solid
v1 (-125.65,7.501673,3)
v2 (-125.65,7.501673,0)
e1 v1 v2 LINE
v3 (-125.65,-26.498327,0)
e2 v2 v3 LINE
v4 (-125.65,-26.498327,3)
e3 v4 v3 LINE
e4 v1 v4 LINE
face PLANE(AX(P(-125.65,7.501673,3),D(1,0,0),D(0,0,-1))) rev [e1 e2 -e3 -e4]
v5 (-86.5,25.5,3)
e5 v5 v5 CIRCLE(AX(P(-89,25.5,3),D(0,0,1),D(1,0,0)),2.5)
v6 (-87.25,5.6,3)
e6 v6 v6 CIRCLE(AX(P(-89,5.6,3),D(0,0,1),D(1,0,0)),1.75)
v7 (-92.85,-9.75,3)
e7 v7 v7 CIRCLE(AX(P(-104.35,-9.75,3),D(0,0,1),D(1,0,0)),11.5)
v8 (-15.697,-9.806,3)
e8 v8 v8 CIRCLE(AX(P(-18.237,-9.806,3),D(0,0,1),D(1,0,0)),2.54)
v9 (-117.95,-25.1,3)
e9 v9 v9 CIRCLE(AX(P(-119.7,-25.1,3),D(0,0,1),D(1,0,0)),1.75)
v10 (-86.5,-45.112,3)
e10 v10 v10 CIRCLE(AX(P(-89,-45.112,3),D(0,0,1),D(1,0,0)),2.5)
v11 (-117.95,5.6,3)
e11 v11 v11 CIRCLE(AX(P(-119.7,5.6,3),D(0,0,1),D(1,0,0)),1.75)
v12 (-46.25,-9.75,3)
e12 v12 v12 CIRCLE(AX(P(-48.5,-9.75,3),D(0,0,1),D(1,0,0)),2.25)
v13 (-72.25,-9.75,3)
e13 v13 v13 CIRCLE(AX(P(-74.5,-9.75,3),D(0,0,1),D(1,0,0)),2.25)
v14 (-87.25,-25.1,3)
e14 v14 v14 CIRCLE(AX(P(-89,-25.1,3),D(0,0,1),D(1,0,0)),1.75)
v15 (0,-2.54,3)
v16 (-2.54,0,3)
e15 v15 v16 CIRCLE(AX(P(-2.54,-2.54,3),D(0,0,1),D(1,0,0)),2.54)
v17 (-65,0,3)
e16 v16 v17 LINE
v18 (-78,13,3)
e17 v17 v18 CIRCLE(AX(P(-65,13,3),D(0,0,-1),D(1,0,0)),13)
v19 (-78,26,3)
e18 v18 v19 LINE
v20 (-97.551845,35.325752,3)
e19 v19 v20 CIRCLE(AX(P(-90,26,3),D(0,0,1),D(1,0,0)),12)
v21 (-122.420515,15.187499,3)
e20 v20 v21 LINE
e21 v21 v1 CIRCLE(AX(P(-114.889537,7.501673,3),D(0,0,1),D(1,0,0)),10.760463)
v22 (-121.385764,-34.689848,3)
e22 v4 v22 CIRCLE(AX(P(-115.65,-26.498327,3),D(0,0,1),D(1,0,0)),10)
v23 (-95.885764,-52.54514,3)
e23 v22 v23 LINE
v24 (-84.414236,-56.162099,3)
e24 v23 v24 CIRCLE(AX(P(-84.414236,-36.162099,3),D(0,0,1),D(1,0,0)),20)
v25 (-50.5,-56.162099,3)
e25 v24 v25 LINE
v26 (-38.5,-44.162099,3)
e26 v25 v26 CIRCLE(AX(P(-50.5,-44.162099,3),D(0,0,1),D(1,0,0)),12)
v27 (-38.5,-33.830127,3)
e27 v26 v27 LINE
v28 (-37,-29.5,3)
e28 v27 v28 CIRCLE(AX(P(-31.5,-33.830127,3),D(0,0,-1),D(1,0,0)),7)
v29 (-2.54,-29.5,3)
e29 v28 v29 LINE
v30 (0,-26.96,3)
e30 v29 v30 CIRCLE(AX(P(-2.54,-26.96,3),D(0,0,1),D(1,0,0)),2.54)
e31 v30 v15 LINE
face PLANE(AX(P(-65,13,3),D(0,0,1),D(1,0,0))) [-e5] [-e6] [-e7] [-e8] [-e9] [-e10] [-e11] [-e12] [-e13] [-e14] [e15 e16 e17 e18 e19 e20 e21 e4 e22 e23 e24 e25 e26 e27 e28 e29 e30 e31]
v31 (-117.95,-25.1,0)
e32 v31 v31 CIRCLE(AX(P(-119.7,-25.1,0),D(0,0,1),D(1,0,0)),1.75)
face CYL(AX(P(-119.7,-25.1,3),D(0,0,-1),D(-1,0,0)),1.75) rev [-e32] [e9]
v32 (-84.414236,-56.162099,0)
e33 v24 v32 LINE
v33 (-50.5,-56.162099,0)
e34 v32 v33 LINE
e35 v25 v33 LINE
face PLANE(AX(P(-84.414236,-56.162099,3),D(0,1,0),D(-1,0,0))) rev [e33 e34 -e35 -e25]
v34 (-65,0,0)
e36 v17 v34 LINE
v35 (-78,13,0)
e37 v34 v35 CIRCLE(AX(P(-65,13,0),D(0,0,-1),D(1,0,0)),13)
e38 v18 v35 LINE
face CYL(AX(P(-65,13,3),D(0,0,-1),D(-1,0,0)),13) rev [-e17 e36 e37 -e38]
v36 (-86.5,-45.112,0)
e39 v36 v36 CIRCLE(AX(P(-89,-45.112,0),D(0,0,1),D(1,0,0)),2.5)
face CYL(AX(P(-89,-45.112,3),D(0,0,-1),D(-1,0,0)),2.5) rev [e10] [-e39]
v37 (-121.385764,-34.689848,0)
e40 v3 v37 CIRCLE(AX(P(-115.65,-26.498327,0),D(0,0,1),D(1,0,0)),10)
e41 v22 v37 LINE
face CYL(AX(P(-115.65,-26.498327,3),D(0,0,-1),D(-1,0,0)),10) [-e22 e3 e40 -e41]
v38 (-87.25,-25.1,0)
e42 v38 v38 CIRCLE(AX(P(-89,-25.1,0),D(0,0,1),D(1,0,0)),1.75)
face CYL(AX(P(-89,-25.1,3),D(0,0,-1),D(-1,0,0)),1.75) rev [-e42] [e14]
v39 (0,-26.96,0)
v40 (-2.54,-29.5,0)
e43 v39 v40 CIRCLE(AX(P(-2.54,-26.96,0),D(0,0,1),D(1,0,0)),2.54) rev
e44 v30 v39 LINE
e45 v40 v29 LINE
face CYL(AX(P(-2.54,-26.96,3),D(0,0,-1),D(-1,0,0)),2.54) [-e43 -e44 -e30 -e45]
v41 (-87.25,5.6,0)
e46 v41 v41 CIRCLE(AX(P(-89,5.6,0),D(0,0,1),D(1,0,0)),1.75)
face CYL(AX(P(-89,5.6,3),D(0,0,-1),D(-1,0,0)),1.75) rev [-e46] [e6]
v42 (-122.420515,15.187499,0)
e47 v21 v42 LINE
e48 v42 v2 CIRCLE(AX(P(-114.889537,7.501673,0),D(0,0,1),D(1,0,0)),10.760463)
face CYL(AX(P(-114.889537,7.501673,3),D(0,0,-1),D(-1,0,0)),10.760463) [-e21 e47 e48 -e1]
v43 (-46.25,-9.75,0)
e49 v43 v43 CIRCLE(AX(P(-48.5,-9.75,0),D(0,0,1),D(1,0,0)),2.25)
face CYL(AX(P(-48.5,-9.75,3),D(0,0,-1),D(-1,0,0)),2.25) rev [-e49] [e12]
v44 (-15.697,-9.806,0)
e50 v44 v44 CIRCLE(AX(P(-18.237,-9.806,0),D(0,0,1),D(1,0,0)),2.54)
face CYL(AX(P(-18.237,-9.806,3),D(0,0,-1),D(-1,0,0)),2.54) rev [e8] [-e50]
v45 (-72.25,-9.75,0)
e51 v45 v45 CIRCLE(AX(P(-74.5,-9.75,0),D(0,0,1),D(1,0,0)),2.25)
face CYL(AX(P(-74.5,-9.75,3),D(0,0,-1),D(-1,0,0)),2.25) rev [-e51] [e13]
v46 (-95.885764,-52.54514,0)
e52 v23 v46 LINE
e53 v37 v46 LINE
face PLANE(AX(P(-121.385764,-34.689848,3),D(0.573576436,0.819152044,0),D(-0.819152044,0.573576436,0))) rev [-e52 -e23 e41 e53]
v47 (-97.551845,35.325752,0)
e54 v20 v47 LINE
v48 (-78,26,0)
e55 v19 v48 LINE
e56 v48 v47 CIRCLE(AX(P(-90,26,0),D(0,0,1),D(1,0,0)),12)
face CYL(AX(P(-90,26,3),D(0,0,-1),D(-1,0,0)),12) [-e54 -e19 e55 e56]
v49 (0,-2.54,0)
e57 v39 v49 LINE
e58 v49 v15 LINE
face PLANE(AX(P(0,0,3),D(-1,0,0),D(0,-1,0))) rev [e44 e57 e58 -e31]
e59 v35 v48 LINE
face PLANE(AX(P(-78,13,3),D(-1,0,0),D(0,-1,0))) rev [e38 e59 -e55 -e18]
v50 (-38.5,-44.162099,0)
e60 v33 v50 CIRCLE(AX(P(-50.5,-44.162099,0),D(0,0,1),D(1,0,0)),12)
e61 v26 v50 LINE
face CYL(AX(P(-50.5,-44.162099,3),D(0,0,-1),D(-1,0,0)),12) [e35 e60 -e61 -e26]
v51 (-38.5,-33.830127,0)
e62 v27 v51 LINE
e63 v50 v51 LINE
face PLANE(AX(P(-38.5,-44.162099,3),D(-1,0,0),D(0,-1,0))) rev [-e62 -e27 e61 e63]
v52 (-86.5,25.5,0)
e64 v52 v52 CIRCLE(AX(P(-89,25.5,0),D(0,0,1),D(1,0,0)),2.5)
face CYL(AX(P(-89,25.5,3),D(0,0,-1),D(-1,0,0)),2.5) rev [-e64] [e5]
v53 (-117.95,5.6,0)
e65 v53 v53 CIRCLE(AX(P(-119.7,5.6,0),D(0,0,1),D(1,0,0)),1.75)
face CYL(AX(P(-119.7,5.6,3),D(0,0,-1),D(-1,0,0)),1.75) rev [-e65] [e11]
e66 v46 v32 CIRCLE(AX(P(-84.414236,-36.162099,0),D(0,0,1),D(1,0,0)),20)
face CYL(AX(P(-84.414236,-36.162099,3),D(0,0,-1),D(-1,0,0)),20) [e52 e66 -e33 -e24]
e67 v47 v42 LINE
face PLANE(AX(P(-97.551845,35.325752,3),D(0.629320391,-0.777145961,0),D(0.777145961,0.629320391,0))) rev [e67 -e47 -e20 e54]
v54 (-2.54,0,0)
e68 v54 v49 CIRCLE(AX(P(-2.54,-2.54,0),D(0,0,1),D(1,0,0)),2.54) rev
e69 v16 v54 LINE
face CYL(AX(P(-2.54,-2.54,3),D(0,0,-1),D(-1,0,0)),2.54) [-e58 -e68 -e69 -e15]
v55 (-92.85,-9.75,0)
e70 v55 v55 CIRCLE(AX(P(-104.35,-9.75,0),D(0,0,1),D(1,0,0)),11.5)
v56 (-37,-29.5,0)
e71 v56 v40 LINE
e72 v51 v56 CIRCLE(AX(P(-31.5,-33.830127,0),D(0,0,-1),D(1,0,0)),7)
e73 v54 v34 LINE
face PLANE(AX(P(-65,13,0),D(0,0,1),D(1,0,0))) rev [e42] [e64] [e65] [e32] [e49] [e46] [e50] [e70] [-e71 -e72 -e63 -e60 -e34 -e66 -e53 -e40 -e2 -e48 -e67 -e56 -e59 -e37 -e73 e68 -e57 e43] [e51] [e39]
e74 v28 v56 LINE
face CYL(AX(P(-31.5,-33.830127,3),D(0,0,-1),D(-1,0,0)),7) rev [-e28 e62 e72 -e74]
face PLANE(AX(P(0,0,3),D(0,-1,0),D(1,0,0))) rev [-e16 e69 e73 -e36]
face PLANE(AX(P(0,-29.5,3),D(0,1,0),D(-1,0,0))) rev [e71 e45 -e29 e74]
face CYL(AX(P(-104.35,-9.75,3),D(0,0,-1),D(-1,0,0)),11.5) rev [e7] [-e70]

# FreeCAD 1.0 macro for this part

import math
import FreeCAD as App
import Part
import Sketcher
from FreeCAD import Vector
Q = App.Units.Quantity


def edges_at(feature, points):
    """Names of the edges that pass closest to the given points."""
    edges = feature.Shape.Edges
    near = lambda p: min(range(len(edges)), key=lambda i: edges[i].distToShape(Part.Vertex(*p))[0])
    return sorted({f"Edge{near(p) + 1}" for p in points})

doc = App.newDocument("Part")
body = doc.addObject("PartDesign::Body", "Body")

# Sketch on XY plane
sketch1 = doc.addObject("Sketcher::SketchObject", "Sketch")
body.addObject(sketch1)
sketch1.AttachmentSupport = (doc.XY_Plane, [""])
sketch1.MapMode = "FlatFace"
sketch1.addGeometry([
    Part.LineSegment(Vector(0, -29.5, 0), Vector(0, 0, 0)),  # 0
    Part.LineSegment(Vector(0, 0, 0), Vector(-65, 0, 0)),  # 1
    Part.ArcOfCircle(Part.Circle(Vector(-65, 13, 0), Vector(0, 0, 1), 13), math.radians(-180), math.radians(-90)),  # 2
    Part.LineSegment(Vector(-78, 13, 0), Vector(-78, 26, 0)),  # 3
    Part.ArcOfCircle(Part.Circle(Vector(-90, 26, 0), Vector(0, 0, 1), 12), math.radians(0), math.radians(129)),  # 4
    Part.LineSegment(Vector(-97.6, 35.3, 0), Vector(-122.4, 15.2, 0)),  # 5
    Part.ArcOfCircle(Part.Circle(Vector(-114.9, 7.5, 0), Vector(0, 0, 1), 10.8), math.radians(134), math.radians(180)),  # 6
    Part.LineSegment(Vector(-125.7, 7.5, 0), Vector(-125.7, -26.5, 0)),  # 7
    Part.ArcOfCircle(Part.Circle(Vector(-115.7, -26.5, 0), Vector(0, 0, 1), 10), math.radians(180), math.radians(235)),  # 8
    Part.LineSegment(Vector(-121.4, -34.7, 0), Vector(-95.9, -52.5, 0)),  # 9
    Part.ArcOfCircle(Part.Circle(Vector(-84.4, -36.2, 0), Vector(0, 0, 1), 20), math.radians(-125), math.radians(-90)),  # 10
    Part.LineSegment(Vector(-84.4, -56.2, 0), Vector(-50.5, -56.2, 0)),  # 11
    Part.ArcOfCircle(Part.Circle(Vector(-50.5, -44.2, 0), Vector(0, 0, 1), 12), math.radians(-90), math.radians(0)),  # 12
    Part.LineSegment(Vector(-38.5, -44.2, 0), Vector(-38.5, -33.8, 0)),  # 13
    Part.ArcOfCircle(Part.Circle(Vector(-31.5, -33.8, 0), Vector(0, 0, 1), 7), math.radians(142), math.radians(180)),  # 14
    Part.LineSegment(Vector(-37, -29.5, 0), Vector(0, -29.5, 0)),  # 15
    Part.Circle(Vector(-89, -45.1, 0), Vector(0, 0, 1), 2.5),  # 16
    Part.Circle(Vector(-89, -25.1, 0), Vector(0, 0, 1), 1.8),  # 17
    Part.Circle(Vector(-119.7, -25.1, 0), Vector(0, 0, 1), 1.8),  # 18
    Part.Circle(Vector(-18.2, -9.8, 0), Vector(0, 0, 1), 2.5),  # 19
    Part.Circle(Vector(-48.5, -9.8, 0), Vector(0, 0, 1), 2.2),  # 20
    Part.Circle(Vector(-74.5, -9.8, 0), Vector(0, 0, 1), 2.2),  # 21
    Part.Circle(Vector(-89, 5.6, 0), Vector(0, 0, 1), 1.8),  # 22
    Part.Circle(Vector(-104.3, -9.8, 0), Vector(0, 0, 1), 11.5),  # 23
    Part.Circle(Vector(-119.7, 5.6, 0), Vector(0, 0, 1), 1.8),  # 24
    Part.Circle(Vector(-89, 25.5, 0), Vector(0, 0, 1), 2.5),  # 25
], False)
sketch1.addConstraint([
    Sketcher.Constraint("Coincident", 0, 2, 1, 1),
    Sketcher.Constraint("Tangent", 1, 2, 2, 2),
    Sketcher.Constraint("Tangent", 2, 1, 3, 1),
    Sketcher.Constraint("Tangent", 3, 2, 4, 1),
    Sketcher.Constraint("Tangent", 4, 2, 5, 1),
    Sketcher.Constraint("Coincident", 5, 2, 6, 1),
    Sketcher.Constraint("Tangent", 6, 2, 7, 1),
    Sketcher.Constraint("Tangent", 7, 2, 8, 1),
    Sketcher.Constraint("Tangent", 8, 2, 9, 1),
    Sketcher.Constraint("Tangent", 9, 2, 10, 1),
    Sketcher.Constraint("Tangent", 10, 2, 11, 1),
    Sketcher.Constraint("Tangent", 11, 2, 12, 1),
    Sketcher.Constraint("Tangent", 12, 2, 13, 1),
    Sketcher.Constraint("Tangent", 13, 2, 14, 2),
    Sketcher.Constraint("Coincident", 14, 1, 15, 1),
    Sketcher.Constraint("Coincident", 15, 2, 0, 1),
    Sketcher.Constraint("Vertical", 0),
    Sketcher.Constraint("Horizontal", 1),
    Sketcher.Constraint("Vertical", 3),
    Sketcher.Constraint("Vertical", 7),
    Sketcher.Constraint("Horizontal", 11),
    Sketcher.Constraint("Vertical", 13),
    Sketcher.Constraint("Horizontal", 15),
    Sketcher.Constraint("Coincident", 0, 2, -1, 1),
    Sketcher.Constraint("Equal", 4, 12),
    Sketcher.Constraint("Equal", 17, 18),
    Sketcher.Constraint("Equal", 20, 21),
    Sketcher.Constraint("Equal", 18, 22),
    Sketcher.Constraint("Equal", 22, 24),
    Sketcher.Constraint("Equal", 16, 25),
    Sketcher.Constraint("Horizontal", 17, 3, 18, 3),
    Sketcher.Constraint("Horizontal", 20, 3, 21, 3),
    Sketcher.Constraint("Horizontal", 21, 3, 23, 3),
    Sketcher.Constraint("Horizontal", 22, 3, 24, 3),
    Sketcher.Constraint("Vertical", 16, 3, 17, 3),
    Sketcher.Constraint("Vertical", 17, 3, 22, 3),
    Sketcher.Constraint("Vertical", 18, 3, 24, 3),
    Sketcher.Constraint("Vertical", 22, 3, 25, 3),
    Sketcher.Constraint("Diameter", 16, Q("5 mm")),
    Sketcher.Constraint("Diameter", 23, Q("23 mm")),
    Sketcher.Constraint("Radius", 2, Q("13 mm")),
    Sketcher.Constraint("Radius", 4, Q("12 mm")),
    Sketcher.Constraint("Radius", 8, Q("10 mm")),
    Sketcher.Constraint("Radius", 10, Q("20 mm")),
    Sketcher.Constraint("Radius", 14, Q("7 mm")),
    Sketcher.Constraint("Diameter", 17, Q("3.5 mm")),
    Sketcher.Constraint("Diameter", 20, Q("4.5 mm")),
    Sketcher.Constraint("Diameter", 19, Q("5.08 mm")),
    Sketcher.Constraint("DistanceX", 1, 2, 1, 1, Q("65 mm")),
    Sketcher.Constraint("DistanceX", 15, 1, 15, 2, Q("37 mm")),
    Sketcher.Constraint("DistanceY", 3, 1, 3, 2, Q("13 mm")),
    Sketcher.Constraint("DistanceY", 7, 2, 7, 1, Q("34 mm")),
    Sketcher.Constraint("Angle", 5, Q("-141 deg")),
    Sketcher.Constraint("Angle", 9, Q("-35 deg")),
    Sketcher.Constraint("Distance", 5, Q("32 mm")),
    Sketcher.Constraint("DistanceY", 0, 1, 0, 2, Q("29.5 mm")),
    Sketcher.Constraint("DistanceX", 16, 3, -1, 1, Q("89 mm")),
    Sketcher.Constraint("DistanceX", 20, 3, 14, 3, Q("17 mm")),
    Sketcher.Constraint("DistanceX", 21, 3, 20, 3, Q("26 mm")),
    Sketcher.Constraint("DistanceX", 12, 3, -1, 1, Q("50.5 mm")),
    Sketcher.Constraint("DistanceY", 17, 3, -1, 1, Q("25.1 mm")),
    Sketcher.Constraint("DistanceX", 18, 3, -1, 1, Q("119.7 mm")),
    Sketcher.Constraint("DistanceY", -1, 1, 22, 3, Q("5.6 mm")),
    Sketcher.Constraint("DistanceY", -1, 1, 25, 3, Q("25.5 mm")),
    Sketcher.Constraint("DistanceX", 8, 3, 23, 3, Q("11.3 mm")),
    Sketcher.Constraint("DistanceX", 8, 2, 9, 2, Q("25.5 mm")),
    Sketcher.Constraint("DistanceX", 8, 3, -1, 1, Q("115.65 mm")),
    Sketcher.Constraint("DistanceY", 20, 3, -1, 1, Q("9.75 mm")),
    Sketcher.Constraint("DistanceY", 16, 3, -1, 1, Q("45.112 mm")),
    Sketcher.Constraint("DistanceX", 19, 3, -1, 1, Q("18.237 mm")),
    Sketcher.Constraint("DistanceY", 19, 3, -1, 1, Q("9.806 mm")),
    Sketcher.Constraint("Radius", 6, Q("10.760463 mm")),
])
pad1 = doc.addObject("PartDesign::Pad", "Pad")
body.addObject(pad1)
pad1.Profile = sketch1
pad1.Length = 3
doc.recompute()

fillet = doc.addObject("PartDesign::Fillet", "Fillet")
body.addObject(fillet)
fillet.Base = (pad1, edges_at(pad1, [(0, 0, 1.5), (0, -29.5, 1.5)]))
fillet.Radius = 2.54

doc.recompute()
